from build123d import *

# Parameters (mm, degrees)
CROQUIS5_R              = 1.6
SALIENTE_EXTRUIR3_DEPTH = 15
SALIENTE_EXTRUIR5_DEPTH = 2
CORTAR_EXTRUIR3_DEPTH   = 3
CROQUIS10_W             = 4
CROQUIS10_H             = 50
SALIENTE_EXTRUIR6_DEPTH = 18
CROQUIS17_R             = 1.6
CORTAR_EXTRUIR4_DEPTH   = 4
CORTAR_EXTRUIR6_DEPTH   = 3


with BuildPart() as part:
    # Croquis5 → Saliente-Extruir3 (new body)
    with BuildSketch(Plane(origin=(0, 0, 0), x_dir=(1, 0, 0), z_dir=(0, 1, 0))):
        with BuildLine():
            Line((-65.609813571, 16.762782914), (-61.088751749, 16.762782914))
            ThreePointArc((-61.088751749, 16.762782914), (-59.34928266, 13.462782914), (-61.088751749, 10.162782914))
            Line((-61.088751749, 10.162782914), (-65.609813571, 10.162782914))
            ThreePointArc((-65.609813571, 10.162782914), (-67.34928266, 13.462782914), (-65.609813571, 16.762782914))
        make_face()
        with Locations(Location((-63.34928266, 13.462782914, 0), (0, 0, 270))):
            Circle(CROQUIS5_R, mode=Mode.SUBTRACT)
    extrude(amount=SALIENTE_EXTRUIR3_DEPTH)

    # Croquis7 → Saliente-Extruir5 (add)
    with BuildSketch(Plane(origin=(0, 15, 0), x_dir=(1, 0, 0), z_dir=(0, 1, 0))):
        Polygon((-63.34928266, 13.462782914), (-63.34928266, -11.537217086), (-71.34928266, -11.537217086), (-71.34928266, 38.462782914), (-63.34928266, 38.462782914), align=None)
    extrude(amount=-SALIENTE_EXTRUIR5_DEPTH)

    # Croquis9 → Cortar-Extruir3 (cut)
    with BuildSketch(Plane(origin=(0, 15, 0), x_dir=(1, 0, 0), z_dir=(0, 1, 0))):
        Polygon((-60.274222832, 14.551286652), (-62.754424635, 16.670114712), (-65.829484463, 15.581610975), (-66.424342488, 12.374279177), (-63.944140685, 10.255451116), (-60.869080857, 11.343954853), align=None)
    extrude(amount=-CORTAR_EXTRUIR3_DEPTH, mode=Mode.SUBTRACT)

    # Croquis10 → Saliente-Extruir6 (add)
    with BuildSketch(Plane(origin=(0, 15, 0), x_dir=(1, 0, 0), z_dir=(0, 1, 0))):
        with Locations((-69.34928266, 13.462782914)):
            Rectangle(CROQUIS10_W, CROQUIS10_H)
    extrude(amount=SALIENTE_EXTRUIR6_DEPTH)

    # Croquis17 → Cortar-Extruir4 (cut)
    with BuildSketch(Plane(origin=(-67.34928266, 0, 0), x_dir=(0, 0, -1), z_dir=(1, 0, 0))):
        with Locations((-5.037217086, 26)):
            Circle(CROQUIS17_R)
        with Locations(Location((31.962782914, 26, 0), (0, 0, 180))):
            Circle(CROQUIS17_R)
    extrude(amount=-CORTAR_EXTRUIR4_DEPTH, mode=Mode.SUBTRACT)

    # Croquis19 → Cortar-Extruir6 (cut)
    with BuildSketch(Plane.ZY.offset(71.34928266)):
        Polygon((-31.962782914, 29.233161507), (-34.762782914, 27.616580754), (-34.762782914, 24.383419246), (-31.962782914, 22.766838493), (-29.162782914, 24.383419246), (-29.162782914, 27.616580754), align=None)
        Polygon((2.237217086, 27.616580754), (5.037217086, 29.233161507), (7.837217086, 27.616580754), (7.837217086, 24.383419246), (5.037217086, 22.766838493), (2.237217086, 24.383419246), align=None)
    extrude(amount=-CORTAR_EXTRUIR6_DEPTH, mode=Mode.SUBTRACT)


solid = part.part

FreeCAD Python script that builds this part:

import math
import FreeCAD as App
import Part
import Sketcher
from FreeCAD import Vector
Q = App.Units.Quantity


def add_polygon(sketch, points):
    """Adds a closed chain of lines whose ends are joined by coincident constraints."""
    first, n = sketch.GeometryCount, len(points)
    for a, b in zip(points, points[1:] + points[:1]):
        sketch.addGeometry(Part.LineSegment(App.Vector(*a, 0), App.Vector(*b, 0)), False)
    for i in range(n):
        sketch.addConstraint(Sketcher.Constraint("Coincident", first + i, 2, first + (i + 1) % n, 1))

doc = App.newDocument("Part")
body = doc.addObject("PartDesign::Body", "Body")

# Sketch on XZ plane
sketch1 = doc.addObject("Sketcher::SketchObject", "Sketch")
body.addObject(sketch1)
sketch1.AttachmentSupport = (doc.XZ_Plane, [""])
sketch1.MapMode = "FlatFace"
sketch1.addGeometry([
    Part.LineSegment(Vector(-61.088752, -16.762783, 0), Vector(-65.609814, -16.762783, 0)),  # 0
    Part.ArcOfCircle(Part.Circle(Vector(-63.349283, -13.462783, 0), Vector(0, 0, 1), 4), math.radians(124.411509), math.radians(235.588491)),  # 1
    Part.LineSegment(Vector(-65.609814, -10.162783, 0), Vector(-61.088752, -10.162783, 0)),  # 2
    Part.ArcOfCircle(Part.Circle(Vector(-63.349283, -13.462783, 0), Vector(0, 0, 1), 4), math.radians(-55.588491), math.radians(55.588491)),  # 3
    Part.Circle(Vector(-63.349283, -13.462783, 0), Vector(0, 0, 1), 1.6),  # 4
], False)
sketch1.addConstraint([
    Sketcher.Constraint("Coincident", 0, 2, 1, 2),
    Sketcher.Constraint("Coincident", 1, 1, 2, 1),
    Sketcher.Constraint("Coincident", 2, 2, 3, 2),
    Sketcher.Constraint("Coincident", 3, 1, 0, 1),
    Sketcher.Constraint("Horizontal", 0),
    Sketcher.Constraint("Horizontal", 2),
    Sketcher.Constraint("Coincident", 3, 3, 1, 3),
    Sketcher.Constraint("Coincident", 4, 3, 1, 3),
    Sketcher.Constraint("Equal", 1, 3),
    Sketcher.Constraint("Vertical", 0, 2, 1, 1),
    Sketcher.Constraint("Radius", 1, 4.0),
    Sketcher.Constraint("Diameter", 4, 3.2),
    Sketcher.Constraint("DistanceY", 0, 2, 1, 3, 3.3),
    Sketcher.Constraint("DistanceX", 2, 2, -1, 1, 61.088752),
    Sketcher.Constraint("DistanceY", 1, 3, -1, 1, 13.462783),
])
pad1 = doc.addObject("PartDesign::Pad", "Pad")
body.addObject(pad1)
pad1.Profile = sketch1
pad1.Length = 15
pad1.Reversed = True

# Sketch on XZ plane
sketch2 = doc.addObject("Sketcher::SketchObject", "Sketch001")
body.addObject(sketch2)
sketch2.AttachmentSupport = (doc.XZ_Plane, [""])
sketch2.MapMode = "FlatFace"
sketch2.AttachmentOffset = App.Placement(Vector(0, 0, -15), App.Rotation())
add_polygon(sketch2, [(-63.349283, 11.537217), (-63.349283, -38.462783), (-71.349283, -38.462783), (-71.349283, 11.537217)])  # lines 0-3
sketch2.addConstraint([
    Sketcher.Constraint("Vertical", 0),
    Sketcher.Constraint("Horizontal", 1),
    Sketcher.Constraint("Vertical", 2),
    Sketcher.Constraint("Horizontal", 3),
    Sketcher.Constraint("DistanceX", 1, 2, 1, 1, 8.0),
    Sketcher.Constraint("DistanceY", 0, 2, 0, 1, 50.0),
    Sketcher.Constraint("DistanceX", 0, 2, -1, 1, 63.349283),
    Sketcher.Constraint("DistanceY", 0, 2, -1, 1, 38.462783),
])
pad2 = doc.addObject("PartDesign::Pad", "Pad001")
body.addObject(pad2)
pad2.Profile = sketch2
pad2.Length = 2

# Sketch on XZ plane
sketch3 = doc.addObject("Sketcher::SketchObject", "Sketch002")
body.addObject(sketch3)
sketch3.AttachmentSupport = (doc.XZ_Plane, [""])
sketch3.MapMode = "FlatFace"
sketch3.AttachmentOffset = App.Placement(Vector(0, 0, -15), App.Rotation())
add_polygon(sketch3, [(-60.274223, -14.551287), (-62.754425, -16.670115), (-65.829484, -15.581611), (-66.424342, -12.374279), (-63.944141, -10.255451), (-60.869081, -11.343955)])  # lines 0-5
sketch3.addConstraint([
    Sketcher.Constraint("Parallel", 0, 3),
    Sketcher.Constraint("Parallel", 1, 4),
    Sketcher.Constraint("Parallel", 2, 5),
    Sketcher.Constraint("Equal", 0, 1),
    Sketcher.Constraint("Equal", 1, 2),
    Sketcher.Constraint("Equal", 2, 3),
    Sketcher.Constraint("DistanceX", 2, 2, 3, 2, 2.480202),
    Sketcher.Constraint("Distance", 0, 3.262029),
    Sketcher.Constraint("DistanceY", 1, 2, -1, 1, 15.581611),
    Sketcher.Constraint("DistanceY", 2, 2, -1, 1, 12.374279),
    Sketcher.Constraint("DistanceX", 3, 2, -1, 1, 63.944141),
    Sketcher.Constraint("DistanceX", 4, 2, -1, 1, 60.869081),
])
pocket1 = doc.addObject("PartDesign::Pocket", "Pocket")
body.addObject(pocket1)
pocket1.Profile = sketch3
pocket1.Length = 3
pocket1.Reversed = True

# Sketch on XZ plane
sketch4 = doc.addObject("Sketcher::SketchObject", "Sketch003")
body.addObject(sketch4)
sketch4.AttachmentSupport = (doc.XZ_Plane, [""])
sketch4.MapMode = "FlatFace"
sketch4.AttachmentOffset = App.Placement(Vector(0, 0, -15), App.Rotation())
add_polygon(sketch4, [(-71.349283, -38.462783), (-71.349283, 11.537217), (-67.349283, 11.537217), (-67.349283, -38.462783)])  # lines 0-3
sketch4.addConstraint([
    Sketcher.Constraint("Vertical", 0),
    Sketcher.Constraint("Horizontal", 1),
    Sketcher.Constraint("Vertical", 2),
    Sketcher.Constraint("Horizontal", 3),
    Sketcher.Constraint("DistanceX", 1, 1, 1, 2, 4.0),
    Sketcher.Constraint("DistanceY", 0, 1, 0, 2, 50.0),
    Sketcher.Constraint("DistanceX", 0, 2, -1, 1, 71.349283),
    Sketcher.Constraint("DistanceY", -1, 1, 0, 2, 11.537217),
])
pad3 = doc.addObject("PartDesign::Pad", "Pad002")
body.addObject(pad3)
pad3.Profile = sketch4
pad3.Length = 18
pad3.Reversed = True

# Sketch on YZ plane
sketch5 = doc.addObject("Sketcher::SketchObject", "Sketch004")
body.addObject(sketch5)
sketch5.AttachmentSupport = (doc.YZ_Plane, [""])
sketch5.MapMode = "FlatFace"
sketch5.AttachmentOffset = App.Placement(Vector(0, 0, -67.349283), App.Rotation())
sketch5.addGeometry([
    Part.Circle(Vector(26, 5.037217, 0), Vector(0, 0, 1), 1.6),
    Part.Circle(Vector(26, -31.962783, 0), Vector(0, 0, 1), 1.6),
], False)
sketch5.addConstraint([
    Sketcher.Constraint("Equal", 0, 1),
    Sketcher.Constraint("Vertical", 0, 3, 1, 3),
    Sketcher.Constraint("Diameter", 0, 3.2),
    Sketcher.Constraint("DistanceX", -1, 1, 0, 3, 26.0),
    Sketcher.Constraint("DistanceY", 1, 3, 0, 3, 37.0),
    Sketcher.Constraint("DistanceY", -1, 1, 0, 3, 5.037217),
])
pocket2 = doc.addObject("PartDesign::Pocket", "Pocket001")
body.addObject(pocket2)
pocket2.Profile = sketch5
pocket2.Length = 4

# Sketch on YZ plane
sketch6 = doc.addObject("Sketcher::SketchObject", "Sketch005")
body.addObject(sketch6)
sketch6.AttachmentSupport = (doc.YZ_Plane, [""])
sketch6.MapMode = "FlatFace"
sketch6.AttachmentOffset = App.Placement(Vector(0, 0, -71.349283), App.Rotation())
add_polygon(sketch6, [(29.233162, -31.962783), (27.616581, -34.762783), (24.383419, -34.762783), (22.766838, -31.962783), (24.383419, -29.162783), (27.616581, -29.162783)])  # lines 0-5
add_polygon(sketch6, [(29.233162, 5.037217), (27.616581, 2.237217), (24.383419, 2.237217), (22.766838, 5.037217), (24.383419, 7.837217), (27.616581, 7.837217)])  # lines 6-11
sketch6.addConstraint([
    Sketcher.Constraint("Horizontal", 1),
    Sketcher.Constraint("Horizontal", 4),
    Sketcher.Constraint("Horizontal", 7),
    Sketcher.Constraint("Horizontal", 10),
    Sketcher.Constraint("Parallel", 0, 3),
    Sketcher.Constraint("Parallel", 2, 5),
    Sketcher.Constraint("Parallel", 3, 6),
    Sketcher.Constraint("Parallel", 5, 8),
    Sketcher.Constraint("Parallel", 6, 9),
    Sketcher.Constraint("Parallel", 8, 11),
    Sketcher.Constraint("Horizontal", 2, 2, 5, 2),
    Sketcher.Constraint("Horizontal", 8, 2, 11, 2),
    Sketcher.Constraint("Vertical", 1, 2, 3, 2),
    Sketcher.Constraint("Vertical", 0, 2, 4, 2),
    Sketcher.Constraint("Vertical", 4, 2, 6, 2),
    Sketcher.Constraint("Vertical", 3, 2, 7, 2),
    Sketcher.Constraint("Vertical", 2, 2, 8, 2),
    Sketcher.Constraint("Vertical", 7, 2, 9, 2),
    Sketcher.Constraint("Angle", 0, Q("-120 deg")),
    Sketcher.Constraint("DistanceY", 0, 2, 6, 2, 37.0),
    Sketcher.Constraint("DistanceY", 1, 2, 2, 2, 2.8),
    Sketcher.Constraint("DistanceX", 1, 2, 1, 1, 3.233162),
    Sketcher.Constraint("DistanceX", -1, 1, 0, 2, 27.616581),
    Sketcher.Constraint("DistanceY", 0, 2, -1, 1, 34.762783),
])
pocket3 = doc.addObject("PartDesign::Pocket", "Pocket002")
body.addObject(pocket3)
pocket3.Profile = sketch6
pocket3.Length = 3
pocket3.Reversed = True

doc.recompute()
